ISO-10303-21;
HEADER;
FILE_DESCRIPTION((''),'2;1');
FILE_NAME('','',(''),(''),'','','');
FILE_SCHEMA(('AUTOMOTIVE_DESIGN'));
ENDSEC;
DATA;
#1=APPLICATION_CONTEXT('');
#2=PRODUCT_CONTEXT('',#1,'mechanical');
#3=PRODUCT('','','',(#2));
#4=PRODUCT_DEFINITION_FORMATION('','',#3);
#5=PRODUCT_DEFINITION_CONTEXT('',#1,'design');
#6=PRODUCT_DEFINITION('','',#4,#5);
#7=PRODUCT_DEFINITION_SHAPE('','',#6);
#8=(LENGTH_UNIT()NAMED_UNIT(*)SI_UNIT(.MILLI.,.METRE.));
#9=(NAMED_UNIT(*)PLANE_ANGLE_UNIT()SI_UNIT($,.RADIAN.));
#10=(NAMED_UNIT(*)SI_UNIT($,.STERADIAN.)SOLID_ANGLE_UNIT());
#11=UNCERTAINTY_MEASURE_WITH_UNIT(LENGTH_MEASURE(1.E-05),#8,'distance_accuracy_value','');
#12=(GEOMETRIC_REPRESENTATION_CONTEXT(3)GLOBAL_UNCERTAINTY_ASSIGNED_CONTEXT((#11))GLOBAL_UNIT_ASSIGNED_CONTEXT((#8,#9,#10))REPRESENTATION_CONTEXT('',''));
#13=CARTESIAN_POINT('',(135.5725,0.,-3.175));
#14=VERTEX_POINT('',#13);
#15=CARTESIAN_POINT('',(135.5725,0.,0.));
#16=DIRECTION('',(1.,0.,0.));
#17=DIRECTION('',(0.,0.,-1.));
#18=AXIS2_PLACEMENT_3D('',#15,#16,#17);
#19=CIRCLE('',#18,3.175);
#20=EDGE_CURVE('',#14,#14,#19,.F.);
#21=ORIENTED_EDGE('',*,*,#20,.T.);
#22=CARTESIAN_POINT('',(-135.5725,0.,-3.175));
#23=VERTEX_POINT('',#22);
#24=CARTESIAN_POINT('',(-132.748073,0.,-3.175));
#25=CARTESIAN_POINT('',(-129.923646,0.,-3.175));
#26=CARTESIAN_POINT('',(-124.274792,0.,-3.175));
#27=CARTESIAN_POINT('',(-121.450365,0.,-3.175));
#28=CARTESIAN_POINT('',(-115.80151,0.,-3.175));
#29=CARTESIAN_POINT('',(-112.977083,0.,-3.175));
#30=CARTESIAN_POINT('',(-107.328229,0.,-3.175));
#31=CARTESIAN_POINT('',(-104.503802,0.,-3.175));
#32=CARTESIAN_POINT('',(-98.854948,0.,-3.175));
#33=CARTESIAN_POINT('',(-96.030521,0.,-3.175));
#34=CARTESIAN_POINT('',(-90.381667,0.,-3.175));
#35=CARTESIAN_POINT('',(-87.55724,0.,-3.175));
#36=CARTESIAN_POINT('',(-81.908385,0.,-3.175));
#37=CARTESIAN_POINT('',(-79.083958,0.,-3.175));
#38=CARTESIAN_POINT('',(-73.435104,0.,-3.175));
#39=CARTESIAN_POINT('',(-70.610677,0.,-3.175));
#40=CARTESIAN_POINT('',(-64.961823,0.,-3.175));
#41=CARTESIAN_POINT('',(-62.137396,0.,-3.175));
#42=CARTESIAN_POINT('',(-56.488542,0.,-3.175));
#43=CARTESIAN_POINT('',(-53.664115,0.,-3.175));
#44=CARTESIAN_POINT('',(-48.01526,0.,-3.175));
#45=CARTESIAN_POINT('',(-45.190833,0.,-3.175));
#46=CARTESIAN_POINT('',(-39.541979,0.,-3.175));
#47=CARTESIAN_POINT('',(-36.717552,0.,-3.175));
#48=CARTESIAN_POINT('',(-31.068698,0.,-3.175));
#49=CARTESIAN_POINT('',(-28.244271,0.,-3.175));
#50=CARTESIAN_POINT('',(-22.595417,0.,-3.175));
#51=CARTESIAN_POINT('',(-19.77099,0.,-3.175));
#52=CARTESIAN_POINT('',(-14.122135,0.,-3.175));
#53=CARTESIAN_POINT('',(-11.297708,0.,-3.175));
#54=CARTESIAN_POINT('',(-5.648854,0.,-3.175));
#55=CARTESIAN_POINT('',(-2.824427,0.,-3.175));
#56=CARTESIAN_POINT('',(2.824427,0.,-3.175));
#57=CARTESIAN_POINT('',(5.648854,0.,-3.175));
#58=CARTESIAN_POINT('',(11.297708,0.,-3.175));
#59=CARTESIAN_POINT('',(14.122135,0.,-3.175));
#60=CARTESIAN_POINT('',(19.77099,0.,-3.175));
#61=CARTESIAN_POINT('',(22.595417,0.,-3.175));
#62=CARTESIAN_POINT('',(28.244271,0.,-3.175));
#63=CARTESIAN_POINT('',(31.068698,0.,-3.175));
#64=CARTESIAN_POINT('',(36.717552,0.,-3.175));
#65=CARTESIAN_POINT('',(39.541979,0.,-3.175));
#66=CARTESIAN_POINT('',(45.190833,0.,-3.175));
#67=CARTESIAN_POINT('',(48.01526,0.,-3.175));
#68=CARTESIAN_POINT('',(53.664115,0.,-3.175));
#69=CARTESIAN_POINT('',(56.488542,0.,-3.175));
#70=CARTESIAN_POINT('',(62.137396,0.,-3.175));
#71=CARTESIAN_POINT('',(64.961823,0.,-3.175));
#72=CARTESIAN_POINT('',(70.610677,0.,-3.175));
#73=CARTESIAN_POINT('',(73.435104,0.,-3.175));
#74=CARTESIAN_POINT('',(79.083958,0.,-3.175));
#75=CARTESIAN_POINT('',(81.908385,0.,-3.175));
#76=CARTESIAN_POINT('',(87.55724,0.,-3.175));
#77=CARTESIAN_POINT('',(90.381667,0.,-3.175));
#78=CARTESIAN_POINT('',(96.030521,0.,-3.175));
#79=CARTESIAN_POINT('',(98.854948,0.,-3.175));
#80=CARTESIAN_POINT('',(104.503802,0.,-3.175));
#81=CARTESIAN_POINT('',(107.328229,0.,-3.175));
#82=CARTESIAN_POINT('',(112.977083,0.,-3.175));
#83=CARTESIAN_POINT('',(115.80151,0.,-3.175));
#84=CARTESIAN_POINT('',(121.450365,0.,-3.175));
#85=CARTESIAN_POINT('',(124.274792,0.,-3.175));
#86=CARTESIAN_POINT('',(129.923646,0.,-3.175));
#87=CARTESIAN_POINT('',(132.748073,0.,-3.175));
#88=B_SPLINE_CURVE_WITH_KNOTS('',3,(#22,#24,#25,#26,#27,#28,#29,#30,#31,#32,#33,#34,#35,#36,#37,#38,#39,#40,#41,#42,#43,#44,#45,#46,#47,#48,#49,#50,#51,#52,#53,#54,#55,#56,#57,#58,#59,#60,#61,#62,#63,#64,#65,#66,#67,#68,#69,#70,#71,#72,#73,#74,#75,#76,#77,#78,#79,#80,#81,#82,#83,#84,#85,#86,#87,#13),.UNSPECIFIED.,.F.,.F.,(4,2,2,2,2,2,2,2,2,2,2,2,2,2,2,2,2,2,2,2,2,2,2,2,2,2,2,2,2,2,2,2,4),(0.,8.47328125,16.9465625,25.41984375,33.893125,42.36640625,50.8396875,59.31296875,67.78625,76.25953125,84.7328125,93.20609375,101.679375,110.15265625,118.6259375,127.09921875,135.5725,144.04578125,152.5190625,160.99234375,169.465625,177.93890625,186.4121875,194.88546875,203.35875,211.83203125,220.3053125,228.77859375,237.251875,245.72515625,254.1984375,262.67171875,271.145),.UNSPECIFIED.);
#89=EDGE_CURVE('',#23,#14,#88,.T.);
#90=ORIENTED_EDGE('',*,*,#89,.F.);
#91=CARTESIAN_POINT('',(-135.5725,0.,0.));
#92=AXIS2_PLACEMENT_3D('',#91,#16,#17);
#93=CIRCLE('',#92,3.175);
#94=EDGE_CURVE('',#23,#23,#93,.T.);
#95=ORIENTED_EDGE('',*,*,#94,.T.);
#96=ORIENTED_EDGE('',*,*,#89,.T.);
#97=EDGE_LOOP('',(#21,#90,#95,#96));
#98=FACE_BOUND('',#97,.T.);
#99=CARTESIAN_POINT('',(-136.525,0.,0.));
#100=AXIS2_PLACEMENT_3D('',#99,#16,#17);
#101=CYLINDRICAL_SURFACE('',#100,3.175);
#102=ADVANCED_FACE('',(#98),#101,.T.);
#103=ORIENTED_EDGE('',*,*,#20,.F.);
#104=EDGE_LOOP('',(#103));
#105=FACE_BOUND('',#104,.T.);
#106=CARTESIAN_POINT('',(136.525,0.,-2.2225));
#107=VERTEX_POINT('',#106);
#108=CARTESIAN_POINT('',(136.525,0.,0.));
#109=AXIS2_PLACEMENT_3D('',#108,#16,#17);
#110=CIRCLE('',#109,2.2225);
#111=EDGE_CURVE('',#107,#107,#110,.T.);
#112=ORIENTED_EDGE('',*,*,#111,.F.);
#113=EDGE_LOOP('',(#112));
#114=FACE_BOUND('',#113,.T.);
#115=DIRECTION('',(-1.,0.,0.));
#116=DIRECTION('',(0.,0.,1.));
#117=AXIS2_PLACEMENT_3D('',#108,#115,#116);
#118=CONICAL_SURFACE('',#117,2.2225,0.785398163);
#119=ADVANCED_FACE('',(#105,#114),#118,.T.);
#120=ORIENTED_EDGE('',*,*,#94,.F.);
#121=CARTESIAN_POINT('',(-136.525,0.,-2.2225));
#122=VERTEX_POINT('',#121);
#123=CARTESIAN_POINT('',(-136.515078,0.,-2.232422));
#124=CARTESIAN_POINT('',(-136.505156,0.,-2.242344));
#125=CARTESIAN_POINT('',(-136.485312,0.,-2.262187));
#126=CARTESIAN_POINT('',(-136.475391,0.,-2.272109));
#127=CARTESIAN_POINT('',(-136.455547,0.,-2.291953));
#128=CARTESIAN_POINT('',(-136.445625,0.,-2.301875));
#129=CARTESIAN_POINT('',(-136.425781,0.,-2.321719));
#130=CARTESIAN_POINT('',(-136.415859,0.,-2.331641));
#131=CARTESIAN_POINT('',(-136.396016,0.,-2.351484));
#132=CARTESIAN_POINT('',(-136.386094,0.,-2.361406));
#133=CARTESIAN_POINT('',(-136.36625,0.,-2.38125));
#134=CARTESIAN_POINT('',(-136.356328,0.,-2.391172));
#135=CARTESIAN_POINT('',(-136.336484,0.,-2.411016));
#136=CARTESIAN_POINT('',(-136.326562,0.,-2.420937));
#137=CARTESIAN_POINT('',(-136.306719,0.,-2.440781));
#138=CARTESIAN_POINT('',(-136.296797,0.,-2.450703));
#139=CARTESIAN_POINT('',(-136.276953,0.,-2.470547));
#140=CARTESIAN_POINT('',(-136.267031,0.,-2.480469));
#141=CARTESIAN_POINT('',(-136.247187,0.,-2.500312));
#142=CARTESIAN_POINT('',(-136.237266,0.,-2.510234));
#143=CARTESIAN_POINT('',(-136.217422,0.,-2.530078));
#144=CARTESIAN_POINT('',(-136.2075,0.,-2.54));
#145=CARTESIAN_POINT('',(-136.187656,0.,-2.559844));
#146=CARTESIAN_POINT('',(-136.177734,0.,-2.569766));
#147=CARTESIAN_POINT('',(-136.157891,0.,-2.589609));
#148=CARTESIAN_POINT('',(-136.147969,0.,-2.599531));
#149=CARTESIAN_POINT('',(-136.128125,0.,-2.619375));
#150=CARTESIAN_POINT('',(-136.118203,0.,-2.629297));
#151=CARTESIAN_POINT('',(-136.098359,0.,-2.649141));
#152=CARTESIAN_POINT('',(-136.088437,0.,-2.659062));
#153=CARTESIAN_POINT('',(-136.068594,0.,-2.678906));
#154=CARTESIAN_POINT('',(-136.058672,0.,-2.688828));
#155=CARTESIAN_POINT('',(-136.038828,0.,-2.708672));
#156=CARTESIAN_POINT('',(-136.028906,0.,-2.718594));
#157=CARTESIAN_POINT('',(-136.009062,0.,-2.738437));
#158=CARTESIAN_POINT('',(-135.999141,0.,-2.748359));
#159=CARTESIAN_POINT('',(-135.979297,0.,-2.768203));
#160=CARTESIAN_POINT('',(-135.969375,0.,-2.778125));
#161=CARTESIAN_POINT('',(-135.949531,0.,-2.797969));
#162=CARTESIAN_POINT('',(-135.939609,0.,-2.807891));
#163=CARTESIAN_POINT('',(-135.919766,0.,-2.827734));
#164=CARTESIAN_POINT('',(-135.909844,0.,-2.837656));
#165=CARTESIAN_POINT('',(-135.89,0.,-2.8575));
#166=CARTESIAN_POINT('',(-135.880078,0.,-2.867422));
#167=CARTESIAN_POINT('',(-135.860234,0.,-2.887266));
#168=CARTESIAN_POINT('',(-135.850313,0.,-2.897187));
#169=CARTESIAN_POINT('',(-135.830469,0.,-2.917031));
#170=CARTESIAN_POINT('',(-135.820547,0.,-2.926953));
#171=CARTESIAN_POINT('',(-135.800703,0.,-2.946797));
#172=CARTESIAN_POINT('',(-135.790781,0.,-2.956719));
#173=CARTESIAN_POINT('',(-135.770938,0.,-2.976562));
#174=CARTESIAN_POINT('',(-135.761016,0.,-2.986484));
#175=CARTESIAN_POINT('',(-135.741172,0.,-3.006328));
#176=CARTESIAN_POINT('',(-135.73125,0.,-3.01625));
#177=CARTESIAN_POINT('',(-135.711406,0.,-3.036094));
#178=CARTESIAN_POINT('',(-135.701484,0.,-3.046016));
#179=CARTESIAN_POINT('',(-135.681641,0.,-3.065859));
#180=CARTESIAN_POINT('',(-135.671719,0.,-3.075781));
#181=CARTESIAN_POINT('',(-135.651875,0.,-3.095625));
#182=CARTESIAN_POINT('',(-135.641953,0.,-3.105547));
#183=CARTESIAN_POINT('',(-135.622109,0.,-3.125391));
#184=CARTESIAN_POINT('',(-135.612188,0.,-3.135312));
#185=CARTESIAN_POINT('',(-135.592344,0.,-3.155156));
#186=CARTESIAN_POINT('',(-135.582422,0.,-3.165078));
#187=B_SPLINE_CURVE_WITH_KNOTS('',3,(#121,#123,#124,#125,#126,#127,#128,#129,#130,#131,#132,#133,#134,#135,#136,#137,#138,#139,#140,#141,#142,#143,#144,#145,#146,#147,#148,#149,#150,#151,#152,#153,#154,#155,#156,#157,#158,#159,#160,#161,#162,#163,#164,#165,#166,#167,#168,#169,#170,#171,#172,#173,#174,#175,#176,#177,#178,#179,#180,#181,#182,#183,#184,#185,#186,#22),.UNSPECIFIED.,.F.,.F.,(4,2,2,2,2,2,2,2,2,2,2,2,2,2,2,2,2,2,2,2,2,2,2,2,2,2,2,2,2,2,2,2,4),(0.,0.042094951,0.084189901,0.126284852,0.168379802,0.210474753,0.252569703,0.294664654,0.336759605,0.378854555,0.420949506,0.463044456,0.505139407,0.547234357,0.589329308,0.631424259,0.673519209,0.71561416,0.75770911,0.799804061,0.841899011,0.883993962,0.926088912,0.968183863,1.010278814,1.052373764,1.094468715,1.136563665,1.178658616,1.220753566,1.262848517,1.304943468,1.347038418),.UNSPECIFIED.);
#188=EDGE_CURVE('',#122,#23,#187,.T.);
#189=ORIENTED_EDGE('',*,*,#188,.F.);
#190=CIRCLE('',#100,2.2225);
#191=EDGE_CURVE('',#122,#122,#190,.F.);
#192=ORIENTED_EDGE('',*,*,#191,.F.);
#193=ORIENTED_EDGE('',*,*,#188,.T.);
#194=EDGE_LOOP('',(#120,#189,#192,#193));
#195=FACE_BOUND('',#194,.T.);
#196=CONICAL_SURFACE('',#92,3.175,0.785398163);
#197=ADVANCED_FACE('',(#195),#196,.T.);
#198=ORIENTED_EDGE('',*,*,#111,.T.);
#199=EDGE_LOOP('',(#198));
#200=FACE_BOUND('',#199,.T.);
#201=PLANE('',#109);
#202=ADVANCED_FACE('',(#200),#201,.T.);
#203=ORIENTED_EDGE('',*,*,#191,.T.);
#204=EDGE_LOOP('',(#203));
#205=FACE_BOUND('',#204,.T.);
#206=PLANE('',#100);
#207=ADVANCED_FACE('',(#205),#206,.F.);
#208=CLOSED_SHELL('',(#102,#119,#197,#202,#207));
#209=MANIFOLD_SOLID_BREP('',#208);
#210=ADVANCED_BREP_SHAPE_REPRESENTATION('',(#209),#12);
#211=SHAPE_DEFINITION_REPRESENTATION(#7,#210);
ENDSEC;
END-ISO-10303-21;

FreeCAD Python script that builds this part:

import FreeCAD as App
import Part
import Sketcher
Q = App.Units.Quantity


def edges_at(feature, points):
    """Names of the edges that pass closest to the given points."""
    edges = feature.Shape.Edges
    near = lambda p: min(range(len(edges)), key=lambda i: edges[i].distToShape(Part.Vertex(*p))[0])
    return sorted({f"Edge{near(p) + 1}" for p in points})

doc = App.newDocument("Part")
body = doc.addObject("PartDesign::Body", "Body")

sketch1 = body.newObject("Sketcher::SketchObject", "Sketch")
sketch1.AttachmentSupport = (doc.getObject("YZ_Plane"), [""])
sketch1.MapMode = "FlatFace"
sketch1.addGeometry(Part.Circle(App.Vector(0, 0, 0), App.Vector(0, 0, 1), 3.2), False)
sketch1.addConstraint(Sketcher.Constraint("Coincident", 0, 3, -1, 1))
sketch1.addConstraint(Sketcher.Constraint("Diameter", 0, Q("0.25 in")))
pad1 = body.newObject("PartDesign::Pad", "Pad")
pad1.Profile = sketch1
pad1.Type = "TwoLengths"
pad1.Length = Q("5.375 in")
pad1.Length2 = Q("5.375 in")
doc.recompute()

chamfer = body.newObject("PartDesign::Chamfer", "Chamfer")
chamfer.Base = (pad1, edges_at(pad1, [(-136.525, 0, 3.175), (136.525, 0, 3.175)]))
chamfer.Size = Q("0.0375 in")

doc.recompute()
